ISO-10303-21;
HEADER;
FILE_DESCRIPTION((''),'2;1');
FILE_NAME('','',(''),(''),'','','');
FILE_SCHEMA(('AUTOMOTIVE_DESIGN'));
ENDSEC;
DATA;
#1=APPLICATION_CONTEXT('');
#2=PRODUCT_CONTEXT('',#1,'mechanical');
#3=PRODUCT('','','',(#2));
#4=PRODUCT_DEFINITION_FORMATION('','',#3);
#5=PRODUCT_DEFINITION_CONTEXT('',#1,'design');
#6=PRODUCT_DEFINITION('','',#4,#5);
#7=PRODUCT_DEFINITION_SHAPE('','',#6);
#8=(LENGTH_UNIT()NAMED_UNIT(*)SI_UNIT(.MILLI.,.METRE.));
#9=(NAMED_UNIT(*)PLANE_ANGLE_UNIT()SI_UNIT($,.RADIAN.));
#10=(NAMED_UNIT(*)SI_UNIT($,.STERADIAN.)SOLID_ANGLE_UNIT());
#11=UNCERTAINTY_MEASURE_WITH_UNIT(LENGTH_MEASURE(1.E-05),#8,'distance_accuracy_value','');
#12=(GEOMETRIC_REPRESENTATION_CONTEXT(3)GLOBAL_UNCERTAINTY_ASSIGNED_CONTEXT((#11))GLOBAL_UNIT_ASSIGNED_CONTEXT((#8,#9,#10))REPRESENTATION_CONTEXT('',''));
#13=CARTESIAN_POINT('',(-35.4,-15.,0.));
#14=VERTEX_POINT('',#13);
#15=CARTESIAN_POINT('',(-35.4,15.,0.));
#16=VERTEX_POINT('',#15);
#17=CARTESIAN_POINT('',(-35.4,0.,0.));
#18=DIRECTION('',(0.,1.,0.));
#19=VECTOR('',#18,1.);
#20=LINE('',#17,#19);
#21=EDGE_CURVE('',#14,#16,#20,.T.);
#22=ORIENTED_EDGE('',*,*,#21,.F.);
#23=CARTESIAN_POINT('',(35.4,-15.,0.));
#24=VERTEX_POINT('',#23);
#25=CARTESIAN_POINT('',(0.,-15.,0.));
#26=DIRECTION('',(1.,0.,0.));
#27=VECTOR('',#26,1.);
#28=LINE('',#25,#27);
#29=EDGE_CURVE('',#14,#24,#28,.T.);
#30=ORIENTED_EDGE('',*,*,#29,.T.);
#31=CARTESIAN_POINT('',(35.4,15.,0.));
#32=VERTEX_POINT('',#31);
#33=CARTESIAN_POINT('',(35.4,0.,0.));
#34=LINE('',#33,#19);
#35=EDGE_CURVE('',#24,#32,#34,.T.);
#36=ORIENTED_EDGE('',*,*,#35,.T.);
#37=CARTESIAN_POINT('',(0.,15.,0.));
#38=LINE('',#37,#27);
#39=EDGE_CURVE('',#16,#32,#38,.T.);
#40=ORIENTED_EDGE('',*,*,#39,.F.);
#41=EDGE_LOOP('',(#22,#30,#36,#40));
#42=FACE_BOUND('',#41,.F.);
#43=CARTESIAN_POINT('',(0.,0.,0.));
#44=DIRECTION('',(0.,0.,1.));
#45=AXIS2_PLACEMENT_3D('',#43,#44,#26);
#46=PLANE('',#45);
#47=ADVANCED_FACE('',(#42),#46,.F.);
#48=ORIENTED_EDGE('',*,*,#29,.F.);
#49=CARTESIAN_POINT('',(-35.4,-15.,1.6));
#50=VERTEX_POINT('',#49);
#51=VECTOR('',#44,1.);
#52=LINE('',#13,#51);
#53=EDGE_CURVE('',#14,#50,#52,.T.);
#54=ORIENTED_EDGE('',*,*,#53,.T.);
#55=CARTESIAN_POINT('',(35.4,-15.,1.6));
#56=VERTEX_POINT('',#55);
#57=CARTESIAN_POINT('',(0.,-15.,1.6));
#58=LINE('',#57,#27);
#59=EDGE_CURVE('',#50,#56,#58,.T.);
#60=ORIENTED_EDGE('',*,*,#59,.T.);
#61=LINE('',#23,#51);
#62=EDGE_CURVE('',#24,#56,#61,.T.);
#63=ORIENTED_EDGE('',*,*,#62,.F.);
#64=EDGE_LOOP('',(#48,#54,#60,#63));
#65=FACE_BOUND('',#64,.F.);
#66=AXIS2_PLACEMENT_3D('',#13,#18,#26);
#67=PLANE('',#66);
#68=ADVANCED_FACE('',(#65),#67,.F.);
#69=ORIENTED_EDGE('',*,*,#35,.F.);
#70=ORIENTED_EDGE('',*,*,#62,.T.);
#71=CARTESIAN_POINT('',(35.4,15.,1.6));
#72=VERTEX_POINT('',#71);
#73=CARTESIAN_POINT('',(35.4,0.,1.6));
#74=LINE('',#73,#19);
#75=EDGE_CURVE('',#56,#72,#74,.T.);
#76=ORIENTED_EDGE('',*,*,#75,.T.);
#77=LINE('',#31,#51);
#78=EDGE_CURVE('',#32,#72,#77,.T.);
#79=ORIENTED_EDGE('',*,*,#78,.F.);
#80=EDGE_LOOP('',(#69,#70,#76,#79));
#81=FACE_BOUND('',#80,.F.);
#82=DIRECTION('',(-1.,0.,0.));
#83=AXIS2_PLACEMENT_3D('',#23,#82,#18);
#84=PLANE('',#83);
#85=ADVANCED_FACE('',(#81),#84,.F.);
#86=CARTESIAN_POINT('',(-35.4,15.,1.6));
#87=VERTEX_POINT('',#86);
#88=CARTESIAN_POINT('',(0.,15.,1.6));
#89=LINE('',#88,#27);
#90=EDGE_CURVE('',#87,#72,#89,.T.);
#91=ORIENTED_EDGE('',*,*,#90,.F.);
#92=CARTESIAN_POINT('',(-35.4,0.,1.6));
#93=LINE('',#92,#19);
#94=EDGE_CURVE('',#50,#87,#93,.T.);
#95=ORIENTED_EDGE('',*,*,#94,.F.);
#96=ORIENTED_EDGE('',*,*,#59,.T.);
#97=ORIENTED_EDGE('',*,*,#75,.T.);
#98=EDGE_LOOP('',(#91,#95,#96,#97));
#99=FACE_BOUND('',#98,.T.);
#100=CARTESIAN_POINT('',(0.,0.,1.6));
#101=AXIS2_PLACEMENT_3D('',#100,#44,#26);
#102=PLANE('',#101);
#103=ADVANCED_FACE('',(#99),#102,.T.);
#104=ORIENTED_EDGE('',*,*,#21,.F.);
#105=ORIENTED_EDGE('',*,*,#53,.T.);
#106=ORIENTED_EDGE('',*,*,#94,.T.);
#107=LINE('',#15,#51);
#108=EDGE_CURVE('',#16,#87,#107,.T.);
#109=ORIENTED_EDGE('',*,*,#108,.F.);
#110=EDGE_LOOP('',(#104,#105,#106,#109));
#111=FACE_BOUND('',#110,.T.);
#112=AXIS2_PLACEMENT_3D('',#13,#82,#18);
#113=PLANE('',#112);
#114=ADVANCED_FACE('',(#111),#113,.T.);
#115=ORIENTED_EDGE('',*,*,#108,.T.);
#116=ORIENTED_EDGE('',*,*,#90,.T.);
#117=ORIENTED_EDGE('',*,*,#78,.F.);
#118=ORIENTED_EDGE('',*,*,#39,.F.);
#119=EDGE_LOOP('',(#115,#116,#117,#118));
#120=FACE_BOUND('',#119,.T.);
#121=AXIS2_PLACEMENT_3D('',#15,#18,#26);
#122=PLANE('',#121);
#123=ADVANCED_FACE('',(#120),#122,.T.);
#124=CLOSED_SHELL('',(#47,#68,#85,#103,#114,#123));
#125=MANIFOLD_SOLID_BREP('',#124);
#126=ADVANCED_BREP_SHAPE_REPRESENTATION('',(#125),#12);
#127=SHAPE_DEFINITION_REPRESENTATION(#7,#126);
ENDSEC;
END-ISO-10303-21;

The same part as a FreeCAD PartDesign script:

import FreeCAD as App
import Part
import Sketcher
Q = App.Units.Quantity


def add_polygon(sketch, points):
    """Adds a closed chain of lines whose ends are joined by coincident constraints."""
    first, n = sketch.GeometryCount, len(points)
    for a, b in zip(points, points[1:] + points[:1]):
        sketch.addGeometry(Part.LineSegment(App.Vector(*a, 0), App.Vector(*b, 0)), False)
    for i in range(n):
        sketch.addConstraint(Sketcher.Constraint("Coincident", first + i, 2, first + (i + 1) % n, 1))

doc = App.newDocument("Part")
body = doc.addObject("PartDesign::Body", "Body")

# Sketch on XY plane
sketch1 = doc.addObject("Sketcher::SketchObject", "Sketch")
body.addObject(sketch1)
sketch1.AttachmentSupport = (doc.XY_Plane, [""])
sketch1.MapMode = "FlatFace"
add_polygon(sketch1, [(-35, 15), (-35, -15), (35, -15), (35, 15)])  # lines 0-3
sketch1.addConstraint(Sketcher.Constraint("Vertical", 0))
sketch1.addConstraint(Sketcher.Constraint("Horizontal", 1))
sketch1.addConstraint(Sketcher.Constraint("Vertical", 2))
sketch1.addConstraint(Sketcher.Constraint("Horizontal", 3))
sketch1.addConstraint(Sketcher.Constraint("Symmetric", 0, 2, 2, 2, -1, 1))
sketch1.addConstraint(Sketcher.Constraint("DistanceY", 0, 2, 0, 1, Q("30 mm")))
sketch1.addConstraint(Sketcher.Constraint("DistanceX", 1, 1, 1, 2, Q("70.8 mm")))
pad1 = doc.addObject("PartDesign::Pad", "Pad")
body.addObject(pad1)
pad1.Profile = sketch1
pad1.Length = 1.6

doc.recompute()
